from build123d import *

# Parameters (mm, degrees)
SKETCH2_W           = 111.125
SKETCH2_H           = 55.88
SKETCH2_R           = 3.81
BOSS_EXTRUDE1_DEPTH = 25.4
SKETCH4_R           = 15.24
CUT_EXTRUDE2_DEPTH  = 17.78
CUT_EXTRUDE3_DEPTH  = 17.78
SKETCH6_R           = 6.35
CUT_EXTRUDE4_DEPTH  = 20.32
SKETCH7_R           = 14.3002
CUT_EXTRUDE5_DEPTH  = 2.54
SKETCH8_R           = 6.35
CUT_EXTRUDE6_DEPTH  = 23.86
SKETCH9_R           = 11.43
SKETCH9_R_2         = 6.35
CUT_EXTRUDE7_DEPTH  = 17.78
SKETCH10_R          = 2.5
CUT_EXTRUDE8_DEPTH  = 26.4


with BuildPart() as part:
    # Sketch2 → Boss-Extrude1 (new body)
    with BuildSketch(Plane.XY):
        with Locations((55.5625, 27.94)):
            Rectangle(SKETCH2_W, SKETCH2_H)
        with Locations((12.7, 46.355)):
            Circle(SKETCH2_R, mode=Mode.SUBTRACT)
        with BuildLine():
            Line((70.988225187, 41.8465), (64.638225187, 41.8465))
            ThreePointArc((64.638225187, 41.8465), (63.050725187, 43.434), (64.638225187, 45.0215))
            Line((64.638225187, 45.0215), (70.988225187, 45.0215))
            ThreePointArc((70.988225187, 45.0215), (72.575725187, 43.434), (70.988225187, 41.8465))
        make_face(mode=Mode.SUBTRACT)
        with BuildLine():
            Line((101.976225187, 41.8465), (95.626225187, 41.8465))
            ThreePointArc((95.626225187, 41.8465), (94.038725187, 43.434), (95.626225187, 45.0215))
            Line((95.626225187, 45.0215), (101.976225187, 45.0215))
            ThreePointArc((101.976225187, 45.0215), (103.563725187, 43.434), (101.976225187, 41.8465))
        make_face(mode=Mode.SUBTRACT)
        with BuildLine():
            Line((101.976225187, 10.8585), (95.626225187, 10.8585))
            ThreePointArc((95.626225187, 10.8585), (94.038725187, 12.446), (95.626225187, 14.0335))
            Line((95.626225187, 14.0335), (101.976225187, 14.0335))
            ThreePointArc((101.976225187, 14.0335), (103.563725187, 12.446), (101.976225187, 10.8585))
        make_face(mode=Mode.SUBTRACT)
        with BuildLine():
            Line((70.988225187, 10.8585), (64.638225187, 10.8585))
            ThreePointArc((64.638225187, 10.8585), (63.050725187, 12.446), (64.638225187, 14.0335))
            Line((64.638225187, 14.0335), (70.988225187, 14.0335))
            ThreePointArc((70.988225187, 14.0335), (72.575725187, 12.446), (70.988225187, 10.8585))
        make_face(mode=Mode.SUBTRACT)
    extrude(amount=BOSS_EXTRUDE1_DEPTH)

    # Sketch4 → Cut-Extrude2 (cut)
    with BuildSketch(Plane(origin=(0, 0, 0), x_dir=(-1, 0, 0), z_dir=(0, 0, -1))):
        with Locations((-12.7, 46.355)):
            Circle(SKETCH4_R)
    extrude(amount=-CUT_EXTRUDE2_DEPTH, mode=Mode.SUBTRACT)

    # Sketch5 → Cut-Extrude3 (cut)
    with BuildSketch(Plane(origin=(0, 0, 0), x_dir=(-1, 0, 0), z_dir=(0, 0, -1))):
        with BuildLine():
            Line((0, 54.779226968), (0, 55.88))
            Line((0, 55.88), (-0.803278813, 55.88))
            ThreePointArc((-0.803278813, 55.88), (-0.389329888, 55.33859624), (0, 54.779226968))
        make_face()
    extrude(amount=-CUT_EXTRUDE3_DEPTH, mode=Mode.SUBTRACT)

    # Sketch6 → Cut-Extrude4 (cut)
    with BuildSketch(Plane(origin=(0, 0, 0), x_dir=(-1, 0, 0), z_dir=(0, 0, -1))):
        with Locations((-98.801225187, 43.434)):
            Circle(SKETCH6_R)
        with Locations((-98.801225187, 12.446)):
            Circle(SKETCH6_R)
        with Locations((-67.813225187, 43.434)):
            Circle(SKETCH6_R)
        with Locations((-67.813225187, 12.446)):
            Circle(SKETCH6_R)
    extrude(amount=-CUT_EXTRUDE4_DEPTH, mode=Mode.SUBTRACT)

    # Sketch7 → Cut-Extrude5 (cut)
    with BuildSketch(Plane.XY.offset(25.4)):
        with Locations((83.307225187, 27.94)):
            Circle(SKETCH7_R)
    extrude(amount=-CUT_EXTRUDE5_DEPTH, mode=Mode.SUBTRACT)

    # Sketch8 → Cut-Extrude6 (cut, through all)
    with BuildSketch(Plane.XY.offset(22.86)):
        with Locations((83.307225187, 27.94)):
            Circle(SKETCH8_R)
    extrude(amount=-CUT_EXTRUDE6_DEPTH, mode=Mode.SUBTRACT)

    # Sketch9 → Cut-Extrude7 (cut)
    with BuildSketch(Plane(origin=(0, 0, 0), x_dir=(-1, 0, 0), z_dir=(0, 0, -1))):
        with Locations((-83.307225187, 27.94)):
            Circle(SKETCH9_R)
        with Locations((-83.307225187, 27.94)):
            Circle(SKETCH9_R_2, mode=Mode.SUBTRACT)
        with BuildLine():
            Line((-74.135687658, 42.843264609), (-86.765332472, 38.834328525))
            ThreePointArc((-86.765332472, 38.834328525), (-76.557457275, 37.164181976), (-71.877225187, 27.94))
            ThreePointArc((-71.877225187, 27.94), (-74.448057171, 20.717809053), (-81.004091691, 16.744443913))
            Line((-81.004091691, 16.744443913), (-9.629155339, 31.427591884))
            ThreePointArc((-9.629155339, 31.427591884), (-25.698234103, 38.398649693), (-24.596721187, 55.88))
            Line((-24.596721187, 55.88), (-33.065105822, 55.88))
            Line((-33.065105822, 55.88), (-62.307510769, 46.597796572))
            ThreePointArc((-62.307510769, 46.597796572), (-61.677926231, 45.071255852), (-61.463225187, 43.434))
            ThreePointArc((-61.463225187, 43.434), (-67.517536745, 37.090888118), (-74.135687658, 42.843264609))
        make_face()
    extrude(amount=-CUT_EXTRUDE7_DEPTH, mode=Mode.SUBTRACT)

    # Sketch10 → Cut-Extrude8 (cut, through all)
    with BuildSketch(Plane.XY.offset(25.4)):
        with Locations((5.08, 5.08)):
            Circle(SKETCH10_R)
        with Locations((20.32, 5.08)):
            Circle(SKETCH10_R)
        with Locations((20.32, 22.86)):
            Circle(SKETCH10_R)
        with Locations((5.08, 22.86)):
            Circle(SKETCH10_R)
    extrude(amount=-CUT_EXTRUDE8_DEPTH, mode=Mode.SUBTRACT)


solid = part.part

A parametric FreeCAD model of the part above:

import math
import FreeCAD as App
import Part
import Sketcher
Q = App.Units.Quantity

doc = App.newDocument("Part")
body = doc.addObject("PartDesign::Body", "Body")

# Sketch on XY plane
sketch1 = doc.addObject("Sketcher::SketchObject", "Sketch")
body.addObject(sketch1)
sketch1.AttachmentSupport = (doc.XY_Plane, [""])
sketch1.MapMode = "FlatFace"
sketch1.addGeometry([
    Part.LineSegment(App.Vector(0, 55.9, 0), App.Vector(0, 0, 0)),  # 0
    Part.LineSegment(App.Vector(0, 0, 0), App.Vector(111.1, 0, 0)),  # 1
    Part.LineSegment(App.Vector(111.1, 0, 0), App.Vector(111.1, 55.9, 0)),  # 2
    Part.LineSegment(App.Vector(111.1, 55.9, 0), App.Vector(0, 55.9, 0)),  # 3
    Part.ArcOfCircle(Part.Circle(App.Vector(71, 12.4, 0), App.Vector(0, 0, 1), 1.6), math.radians(-90), math.radians(90)),  # 4
    Part.LineSegment(App.Vector(71, 10.9, 0), App.Vector(64.6, 10.9, 0)),  # 5
    Part.ArcOfCircle(Part.Circle(App.Vector(64.6, 12.4, 0), App.Vector(0, 0, 1), 1.6), math.radians(90), math.radians(270)),  # 6
    Part.LineSegment(App.Vector(64.6, 14, 0), App.Vector(71, 14, 0)),  # 7
    Part.ArcOfCircle(Part.Circle(App.Vector(102, 12.4, 0), App.Vector(0, 0, 1), 1.6), math.radians(-90), math.radians(90)),  # 8
    Part.LineSegment(App.Vector(102, 10.9, 0), App.Vector(95.6, 10.9, 0)),  # 9
    Part.ArcOfCircle(Part.Circle(App.Vector(95.6, 12.4, 0), App.Vector(0, 0, 1), 1.6), math.radians(90), math.radians(270)),  # 10
    Part.LineSegment(App.Vector(95.6, 14, 0), App.Vector(102, 14, 0)),  # 11
    Part.Circle(App.Vector(12.7, 46.4, 0), App.Vector(0, 0, 1), 3.8),  # 12
    Part.ArcOfCircle(Part.Circle(App.Vector(71, 43.4, 0), App.Vector(0, 0, 1), 1.6), math.radians(-90), math.radians(90)),  # 13
    Part.LineSegment(App.Vector(71, 41.8, 0), App.Vector(64.6, 41.8, 0)),  # 14
    Part.ArcOfCircle(Part.Circle(App.Vector(64.6, 43.4, 0), App.Vector(0, 0, 1), 1.6), math.radians(90), math.radians(270)),  # 15
    Part.LineSegment(App.Vector(64.6, 45, 0), App.Vector(71, 45, 0)),  # 16
    Part.ArcOfCircle(Part.Circle(App.Vector(102, 43.4, 0), App.Vector(0, 0, 1), 1.6), math.radians(-90), math.radians(90)),  # 17
    Part.LineSegment(App.Vector(102, 41.8, 0), App.Vector(95.6, 41.8, 0)),  # 18
    Part.ArcOfCircle(Part.Circle(App.Vector(95.6, 43.4, 0), App.Vector(0, 0, 1), 1.6), math.radians(90), math.radians(270)),  # 19
    Part.LineSegment(App.Vector(95.6, 45, 0), App.Vector(102, 45, 0)),  # 20
], False)
sketch1.addConstraint([
    Sketcher.Constraint("Coincident", 0, 2, 1, 1),
    Sketcher.Constraint("Coincident", 1, 2, 2, 1),
    Sketcher.Constraint("Coincident", 2, 2, 3, 1),
    Sketcher.Constraint("Coincident", 3, 2, 0, 1),
    Sketcher.Constraint("Tangent", 4, 1, 5, 1),
    Sketcher.Constraint("Tangent", 5, 2, 6, 2),
    Sketcher.Constraint("Tangent", 6, 1, 7, 1),
    Sketcher.Constraint("Tangent", 7, 2, 4, 2),
    Sketcher.Constraint("Tangent", 8, 1, 9, 1),
    Sketcher.Constraint("Tangent", 9, 2, 10, 2),
    Sketcher.Constraint("Tangent", 10, 1, 11, 1),
    Sketcher.Constraint("Tangent", 11, 2, 8, 2),
    Sketcher.Constraint("Tangent", 13, 1, 14, 1),
    Sketcher.Constraint("Tangent", 14, 2, 15, 2),
    Sketcher.Constraint("Tangent", 15, 1, 16, 1),
    Sketcher.Constraint("Tangent", 16, 2, 13, 2),
    Sketcher.Constraint("Tangent", 17, 1, 18, 1),
    Sketcher.Constraint("Tangent", 18, 2, 19, 2),
    Sketcher.Constraint("Tangent", 19, 1, 20, 1),
    Sketcher.Constraint("Tangent", 20, 2, 17, 2),
    Sketcher.Constraint("Vertical", 0),
    Sketcher.Constraint("Horizontal", 1),
    Sketcher.Constraint("Vertical", 2),
    Sketcher.Constraint("Horizontal", 3),
    Sketcher.Constraint("Horizontal", 5),
    Sketcher.Constraint("Horizontal", 7),
    Sketcher.Constraint("Horizontal", 9),
    Sketcher.Constraint("Horizontal", 11),
    Sketcher.Constraint("Horizontal", 14),
    Sketcher.Constraint("Horizontal", 16),
    Sketcher.Constraint("Horizontal", 18),
    Sketcher.Constraint("Horizontal", 20),
    Sketcher.Constraint("Coincident", 0, 2, -1, 1),
    Sketcher.Constraint("Equal", 6, 8),
    Sketcher.Constraint("Equal", 10, 13),
    Sketcher.Constraint("Equal", 15, 17),
    Sketcher.Constraint("Horizontal", 6, 3, 8, 3),
    Sketcher.Constraint("Horizontal", 15, 3, 17, 3),
    Sketcher.Constraint("Vertical", 4, 3, 13, 3),
    Sketcher.Constraint("Vertical", 6, 3, 15, 3),
    Sketcher.Constraint("Vertical", 8, 3, 17, 3),
    Sketcher.Constraint("Vertical", 10, 3, 19, 3),
    Sketcher.Constraint("Equal", 7, 9),
    Sketcher.Constraint("Diameter", 12, Q("0.3 in")),
    Sketcher.Constraint("DistanceY", 0, 2, 0, 1, Q("2.2 in")),
    Sketcher.Constraint("Radius", 4, Q("0.0625 in")),
    Sketcher.Constraint("DistanceX", 5, 2, 5, 1, Q("0.25 in")),
    Sketcher.Constraint("DistanceX", -1, 1, 12, 3, Q("0.5 in")),
    Sketcher.Constraint("DistanceX", 1, 1, 1, 2, Q("4.375 in")),
    Sketcher.Constraint("DistanceY", -1, 1, 4, 3, Q("0.49 in")),
    Sketcher.Constraint("DistanceY", -1, 1, 13, 3, Q("1.71 in")),
    Sketcher.Constraint("DistanceX", 4, 3, 8, 3, Q("1.22 in")),
    Sketcher.Constraint("DistanceY", -1, 1, 12, 3, Q("1.825 in")),
    Sketcher.Constraint("DistanceX", -1, 1, 4, 3, Q("70.988225 mm")),
])
pad1 = doc.addObject("PartDesign::Pad", "Pad")
body.addObject(pad1)
pad1.Profile = sketch1
pad1.Length = Q("1 in")

# Sketch on XY plane
sketch2 = doc.addObject("Sketcher::SketchObject", "Sketch001")
body.addObject(sketch2)
sketch2.AttachmentSupport = (doc.XY_Plane, [""])
sketch2.MapMode = "FlatFace"
sketch2.addGeometry(Part.Circle(App.Vector(13, 46, 0), App.Vector(0, 0, 1), 15), False)
sketch2.addConstraint([
    Sketcher.Constraint("Diameter", 0, Q("1.2 in")),
    Sketcher.Constraint("DistanceX", -1, 1, 0, 3, Q("0.5 in")),
    Sketcher.Constraint("DistanceY", -1, 1, 0, 3, Q("1.825 in")),
])
pocket1 = doc.addObject("PartDesign::Pocket", "Pocket")
body.addObject(pocket1)
pocket1.Profile = sketch2
pocket1.Length = Q("0.7 in")
pocket1.Reversed = True

# Sketch on XY plane
sketch3 = doc.addObject("Sketcher::SketchObject", "Sketch002")
body.addObject(sketch3)
sketch3.AttachmentSupport = (doc.XY_Plane, [""])
sketch3.MapMode = "FlatFace"
sketch3.addGeometry([
    Part.LineSegment(App.Vector(0, 54.8, 0), App.Vector(0, 55.9, 0)),
    Part.LineSegment(App.Vector(0, 55.9, 0), App.Vector(0.8, 55.9, 0)),
    Part.ArcOfCircle(Part.Circle(App.Vector(12.7, 46.4, 0), App.Vector(0, 0, 1), 15.2), math.radians(141.32), math.radians(146.44)),
], False)
sketch3.addConstraint([
    Sketcher.Constraint("Coincident", 0, 2, 1, 1),
    Sketcher.Constraint("Coincident", 1, 2, 2, 1),
    Sketcher.Constraint("Coincident", 2, 2, 0, 1),
    Sketcher.Constraint("Vertical", 0),
    Sketcher.Constraint("Horizontal", 1),
    Sketcher.Constraint("PointOnObject", 0, 2, -2),
    Sketcher.Constraint("Radius", 2, Q("0.6 in")),
    Sketcher.Constraint("DistanceX", -1, 1, 2, 3, Q("0.5 in")),
    Sketcher.Constraint("DistanceY", -1, 1, 0, 2, Q("2.2 in")),
    Sketcher.Constraint("DistanceY", -1, 1, 2, 3, Q("1.825 in")),
])
pocket2 = doc.addObject("PartDesign::Pocket", "Pocket001")
body.addObject(pocket2)
pocket2.Profile = sketch3
pocket2.Length = Q("0.7 in")
pocket2.Reversed = True

# Sketch on XY plane
sketch4 = doc.addObject("Sketcher::SketchObject", "Sketch003")
body.addObject(sketch4)
sketch4.AttachmentSupport = (doc.XY_Plane, [""])
sketch4.MapMode = "FlatFace"
sketch4.addGeometry([
    Part.Circle(App.Vector(99, 43, 0), App.Vector(0, 0, 1), 6),
    Part.Circle(App.Vector(99, 12, 0), App.Vector(0, 0, 1), 6),
    Part.Circle(App.Vector(68, 43, 0), App.Vector(0, 0, 1), 6),
    Part.Circle(App.Vector(68, 12, 0), App.Vector(0, 0, 1), 6),
], False)
sketch4.addConstraint([
    Sketcher.Constraint("Equal", 0, 1),
    Sketcher.Constraint("Equal", 1, 2),
    Sketcher.Constraint("Equal", 2, 3),
    Sketcher.Constraint("Horizontal", 0, 3, 2, 3),
    Sketcher.Constraint("Horizontal", 1, 3, 3, 3),
    Sketcher.Constraint("Vertical", 0, 3, 1, 3),
    Sketcher.Constraint("Vertical", 2, 3, 3, 3),
    Sketcher.Constraint("Diameter", 0, Q("0.5 in")),
    Sketcher.Constraint("DistanceY", -1, 1, 0, 3, Q("1.71 in")),
    Sketcher.Constraint("DistanceY", -1, 1, 1, 3, Q("0.49 in")),
    Sketcher.Constraint("DistanceX", 2, 3, 0, 3, Q("1.22 in")),
    Sketcher.Constraint("DistanceX", -1, 1, 0, 3, Q("98.801225 mm")),
])
pocket3 = doc.addObject("PartDesign::Pocket", "Pocket002")
body.addObject(pocket3)
pocket3.Profile = sketch4
pocket3.Length = Q("0.8 in")
pocket3.Reversed = True

# Sketch on XY plane
sketch5 = doc.addObject("Sketcher::SketchObject", "Sketch004")
body.addObject(sketch5)
sketch5.AttachmentSupport = (doc.XY_Plane, [""])
sketch5.MapMode = "FlatFace"
sketch5.AttachmentOffset = App.Placement(App.Vector(0, 0, 1 * 25.4), App.Rotation())
sketch5.addGeometry(Part.Circle(App.Vector(83, 28, 0), App.Vector(0, 0, 1), 14), False)
sketch5.addConstraint([
    Sketcher.Constraint("Diameter", 0, Q("1.126 in")),
    Sketcher.Constraint("DistanceY", -1, 1, 0, 3, Q("1.1 in")),
    Sketcher.Constraint("DistanceX", -1, 1, 0, 3, Q("83.307225 mm")),
])
pocket4 = doc.addObject("PartDesign::Pocket", "Pocket003")
body.addObject(pocket4)
pocket4.Profile = sketch5
pocket4.Length = Q("0.1 in")

# Sketch on XY plane
sketch6 = doc.addObject("Sketcher::SketchObject", "Sketch005")
body.addObject(sketch6)
sketch6.AttachmentSupport = (doc.XY_Plane, [""])
sketch6.MapMode = "FlatFace"
sketch6.AttachmentOffset = App.Placement(App.Vector(0, 0, 0.9 * 25.4), App.Rotation())
sketch6.addGeometry(Part.Circle(App.Vector(83, 28, 0), App.Vector(0, 0, 1), 6), False)
sketch6.addConstraint([
    Sketcher.Constraint("Diameter", 0, Q("0.5 in")),
    Sketcher.Constraint("DistanceY", -1, 1, 0, 3, Q("1.1 in")),
    Sketcher.Constraint("DistanceX", -1, 1, 0, 3, Q("83.307225 mm")),
])
pocket5 = doc.addObject("PartDesign::Pocket", "Pocket004")
body.addObject(pocket5)
pocket5.Profile = sketch6
pocket5.Type = "ThroughAll"

# Sketch on XY plane
sketch7 = doc.addObject("Sketcher::SketchObject", "Sketch006")
body.addObject(sketch7)
sketch7.AttachmentSupport = (doc.XY_Plane, [""])
sketch7.MapMode = "FlatFace"
sketch7.addGeometry([
    Part.ArcOfCircle(Part.Circle(App.Vector(83.3, 27.9, 0), App.Vector(0, 0, 1), 11.4), math.radians(-102), math.radians(72)),  # 0
    Part.LineSegment(App.Vector(81, 16.7, 0), App.Vector(9.6, 31.4, 0)),  # 1
    Part.ArcOfCircle(Part.Circle(App.Vector(12.7, 46.4, 0), App.Vector(0, 0, 1), 15.2), math.radians(-102), math.radians(39)),  # 2
    Part.LineSegment(App.Vector(24.6, 55.9, 0), App.Vector(33.1, 55.9, 0)),  # 3
    Part.LineSegment(App.Vector(33.1, 55.9, 0), App.Vector(62.3, 46.6, 0)),  # 4
    Part.ArcOfCircle(Part.Circle(App.Vector(67.8, 43.4, 0), App.Vector(0, 0, 1), 6.3), math.radians(150), math.radians(180)),  # 5
    Part.ArcOfCircle(Part.Circle(App.Vector(67.8, 43.4, 0), App.Vector(0, 0, 1), 6.3), math.radians(180), math.radians(355)),  # 6
    Part.LineSegment(App.Vector(74.1, 42.8, 0), App.Vector(86.8, 38.8, 0)),  # 7
    Part.Circle(App.Vector(83.3, 27.9, 0), App.Vector(0, 0, 1), 6.3),  # 8
], False)
sketch7.addConstraint([
    Sketcher.Constraint("Tangent", 0, 1, 1, 1),
    Sketcher.Constraint("Tangent", 1, 2, 2, 1),
    Sketcher.Constraint("Coincident", 2, 2, 3, 1),
    Sketcher.Constraint("Coincident", 3, 2, 4, 1),
    Sketcher.Constraint("Coincident", 4, 2, 5, 1),
    Sketcher.Constraint("Tangent", 5, 2, 6, 1),
    Sketcher.Constraint("Coincident", 6, 2, 7, 1),
    Sketcher.Constraint("Tangent", 7, 2, 0, 2),
    Sketcher.Constraint("Horizontal", 3),
    Sketcher.Constraint("Coincident", 8, 3, 0, 3),
    Sketcher.Constraint("Equal", 5, 6),
    Sketcher.Constraint("Equal", 6, 8),
    Sketcher.Constraint("Parallel", 4, 7),
    Sketcher.Constraint("Horizontal", 6, 3, 5, 2),
    Sketcher.Constraint("Diameter", 8, Q("0.5 in")),
    Sketcher.Constraint("Radius", 2, Q("0.6 in")),
    Sketcher.Constraint("Radius", 0, Q("0.45 in")),
    Sketcher.Constraint("DistanceY", -1, 1, 0, 3, Q("1.1 in")),
    Sketcher.Constraint("DistanceX", -1, 1, 2, 3, Q("0.5 in")),
    Sketcher.Constraint("DistanceY", -1, 1, 2, 2, Q("2.2 in")),
    Sketcher.Constraint("DistanceY", -1, 1, 5, 3, Q("1.71 in")),
    Sketcher.Constraint("DistanceX", 5, 3, 0, 3, Q("0.61 in")),
    Sketcher.Constraint("DistanceY", -1, 1, 2, 3, Q("1.825 in")),
    Sketcher.Constraint("Distance", 7, Q("13.250641 mm")),
    Sketcher.Constraint("DistanceX", 3, 1, 3, 2, Q("8.468385 mm")),
    Sketcher.Constraint("DistanceX", -1, 1, 0, 1, Q("81.004092 mm")),
])
pocket6 = doc.addObject("PartDesign::Pocket", "Pocket005")
body.addObject(pocket6)
pocket6.Profile = sketch7
pocket6.Length = Q("0.7 in")
pocket6.Reversed = True

# Sketch on XY plane
sketch8 = doc.addObject("Sketcher::SketchObject", "Sketch007")
body.addObject(sketch8)
sketch8.AttachmentSupport = (doc.XY_Plane, [""])
sketch8.MapMode = "FlatFace"
sketch8.AttachmentOffset = App.Placement(App.Vector(0, 0, 1 * 25.4), App.Rotation())
sketch8.addGeometry([
    Part.Circle(App.Vector(5.1, 5.1, 0), App.Vector(0, 0, 1), 2.5),
    Part.Circle(App.Vector(20.3, 5.1, 0), App.Vector(0, 0, 1), 2.5),
    Part.Circle(App.Vector(20.3, 22.9, 0), App.Vector(0, 0, 1), 2.5),
    Part.Circle(App.Vector(5.1, 22.9, 0), App.Vector(0, 0, 1), 2.5),
], False)
sketch8.addConstraint([
    Sketcher.Constraint("Equal", 0, 1),
    Sketcher.Constraint("Equal", 1, 2),
    Sketcher.Constraint("Equal", 2, 3),
    Sketcher.Constraint("Horizontal", 0, 3, 1, 3),
    Sketcher.Constraint("Horizontal", 2, 3, 3, 3),
    Sketcher.Constraint("Vertical", 1, 3, 2, 3),
    Sketcher.Constraint("Vertical", 0, 3, 3, 3),
    Sketcher.Constraint("DistanceX", -1, 1, 0, 3, Q("0.2 in")),
    Sketcher.Constraint("DistanceY", -1, 1, 0, 3, Q("0.2 in")),
    Sketcher.Constraint("DistanceX", -1, 1, 1, 3, Q("0.8 in")),
    Sketcher.Constraint("DistanceY", -1, 1, 2, 3, Q("0.9 in")),
    Sketcher.Constraint("Diameter", 0, Q("5 mm")),
])
pocket7 = doc.addObject("PartDesign::Pocket", "Pocket006")
body.addObject(pocket7)
pocket7.Profile = sketch8
pocket7.Type = "ThroughAll"

doc.recompute()
